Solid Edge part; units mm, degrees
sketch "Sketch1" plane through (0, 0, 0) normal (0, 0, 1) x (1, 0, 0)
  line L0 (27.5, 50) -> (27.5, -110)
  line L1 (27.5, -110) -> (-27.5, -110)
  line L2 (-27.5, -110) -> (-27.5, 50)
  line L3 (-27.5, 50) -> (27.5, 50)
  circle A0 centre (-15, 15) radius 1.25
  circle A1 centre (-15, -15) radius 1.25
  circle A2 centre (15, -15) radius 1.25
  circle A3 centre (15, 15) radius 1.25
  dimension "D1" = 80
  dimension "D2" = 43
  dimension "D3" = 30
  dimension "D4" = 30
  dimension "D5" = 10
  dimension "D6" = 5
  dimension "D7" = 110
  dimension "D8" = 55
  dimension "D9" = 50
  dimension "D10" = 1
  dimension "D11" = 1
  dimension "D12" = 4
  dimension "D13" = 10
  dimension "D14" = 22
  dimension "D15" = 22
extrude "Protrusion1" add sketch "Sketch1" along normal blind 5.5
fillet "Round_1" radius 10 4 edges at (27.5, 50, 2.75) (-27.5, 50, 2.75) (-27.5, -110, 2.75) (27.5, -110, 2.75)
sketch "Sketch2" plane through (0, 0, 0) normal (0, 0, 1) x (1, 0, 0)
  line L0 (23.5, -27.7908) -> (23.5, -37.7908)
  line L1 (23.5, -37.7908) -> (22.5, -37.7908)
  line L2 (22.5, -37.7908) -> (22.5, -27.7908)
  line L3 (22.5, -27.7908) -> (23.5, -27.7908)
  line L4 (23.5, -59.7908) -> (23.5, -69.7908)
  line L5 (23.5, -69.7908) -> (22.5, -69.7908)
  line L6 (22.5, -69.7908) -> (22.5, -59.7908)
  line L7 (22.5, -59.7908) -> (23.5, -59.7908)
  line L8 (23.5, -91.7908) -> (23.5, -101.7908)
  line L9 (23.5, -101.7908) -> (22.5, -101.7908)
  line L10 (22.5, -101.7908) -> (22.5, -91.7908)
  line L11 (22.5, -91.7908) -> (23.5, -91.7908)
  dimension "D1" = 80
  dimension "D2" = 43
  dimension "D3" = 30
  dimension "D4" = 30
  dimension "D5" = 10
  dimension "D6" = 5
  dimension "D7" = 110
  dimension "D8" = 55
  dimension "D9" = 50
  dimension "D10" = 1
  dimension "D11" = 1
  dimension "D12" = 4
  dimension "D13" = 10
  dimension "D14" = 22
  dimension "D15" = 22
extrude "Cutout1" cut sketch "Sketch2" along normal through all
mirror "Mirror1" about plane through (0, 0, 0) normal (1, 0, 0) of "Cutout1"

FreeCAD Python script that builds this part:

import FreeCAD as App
import Part
import Sketcher

V = App.Vector


def edges_at(feature, points):
    """Names of the edges that pass closest to the given points."""
    edges = feature.Shape.Edges
    near = lambda p: min(range(len(edges)), key=lambda i: edges[i].distToShape(Part.Vertex(*p))[0])
    return sorted({f"Edge{near(p) + 1}" for p in points})

doc = App.newDocument("Part")
body = doc.addObject("PartDesign::Body", "Body")

# Sketch on XY plane
sketch1 = body.newObject("Sketcher::SketchObject", "Sketch")
sketch1.AttachmentSupport = (doc.getObject("XY_Plane"), [""])
sketch1.MapMode = "FlatFace"
sketch1.addGeometry([
    Part.LineSegment(V(27.5, -110, 0), V(27.5, 50, 0)),  # 0
    Part.LineSegment(V(27.5, 50, 0), V(-27.5, 50, 0)),  # 1
    Part.LineSegment(V(-27.5, 50, 0), V(-27.5, -110, 0)),  # 2
    Part.LineSegment(V(-27.5, -110, 0), V(27.5, -110, 0)),  # 3
    Part.Circle(V(-15, -15, 0), V(0, 0, 1), 1.2),  # 4
    Part.Circle(V(-15, 15, 0), V(0, 0, 1), 1.2),  # 5
    Part.Circle(V(15, -15, 0), V(0, 0, 1), 1.2),  # 6
    Part.Circle(V(15, 15, 0), V(0, 0, 1), 1.2),  # 7
], False)
sketch1.addConstraint([
    Sketcher.Constraint("Coincident", 0, 2, 1, 1),
    Sketcher.Constraint("Coincident", 1, 2, 2, 1),
    Sketcher.Constraint("Coincident", 2, 2, 3, 1),
    Sketcher.Constraint("Coincident", 3, 2, 0, 1),
    Sketcher.Constraint("Vertical", 0),
    Sketcher.Constraint("Horizontal", 1),
    Sketcher.Constraint("Vertical", 2),
    Sketcher.Constraint("Horizontal", 3),
    Sketcher.Constraint("Equal", 4, 5),
    Sketcher.Constraint("Equal", 5, 6),
    Sketcher.Constraint("Equal", 6, 7),
    Sketcher.Constraint("Symmetric", 5, 3, 6, 3, -1, 1),
    Sketcher.Constraint("Symmetric", 4, 3, 7, 3, -1, 1),
    Sketcher.Constraint("Symmetric", 4, 3, 6, 3, -2),
    Sketcher.Constraint("Diameter", 4, 2.5),
    Sketcher.Constraint("DistanceX", 1, 2, 1, 1, 55.0),
    Sketcher.Constraint("DistanceY", 0, 1, 0, 2, 160.0),
    Sketcher.Constraint("DistanceX", 4, 3, -1, 1, 15.0),
    Sketcher.Constraint("DistanceY", 4, 3, -1, 1, 15.0),
    Sketcher.Constraint("DistanceY", -1, 1, 0, 2, 50.0),
    Sketcher.Constraint("DistanceX", -1, 1, 0, 2, 27.5),
])
pad1 = body.newObject("PartDesign::Pad", "Pad")
pad1.Profile = sketch1
pad1.Length = 5.5
doc.recompute()

fillet = body.newObject("PartDesign::Fillet", "Fillet")
fillet.Base = (pad1, edges_at(pad1, [
    (27.5, 50, 2.75),
    (-27.5, 50, 2.75),
    (-27.5, -110, 2.75),
    (27.5, -110, 2.75),
]))
fillet.Radius = 10

# Sketch on XY plane
sketch2 = body.newObject("Sketcher::SketchObject", "Sketch001")
sketch2.AttachmentSupport = (doc.getObject("XY_Plane"), [""])
sketch2.MapMode = "FlatFace"
sketch2.addGeometry([
    Part.LineSegment(V(23.5, -37.8, 0), V(23.5, -27.8, 0)),  # 0
    Part.LineSegment(V(23.5, -27.8, 0), V(22.5, -27.8, 0)),  # 1
    Part.LineSegment(V(22.5, -27.8, 0), V(22.5, -37.8, 0)),  # 2
    Part.LineSegment(V(22.5, -37.8, 0), V(23.5, -37.8, 0)),  # 3
    Part.LineSegment(V(23.5, -69.8, 0), V(23.5, -59.8, 0)),  # 4
    Part.LineSegment(V(23.5, -59.8, 0), V(22.5, -59.8, 0)),  # 5
    Part.LineSegment(V(22.5, -59.8, 0), V(22.5, -69.8, 0)),  # 6
    Part.LineSegment(V(22.5, -69.8, 0), V(23.5, -69.8, 0)),  # 7
    Part.LineSegment(V(23.5, -101.8, 0), V(23.5, -91.8, 0)),  # 8
    Part.LineSegment(V(23.5, -91.8, 0), V(22.5, -91.8, 0)),  # 9
    Part.LineSegment(V(22.5, -91.8, 0), V(22.5, -101.8, 0)),  # 10
    Part.LineSegment(V(22.5, -101.8, 0), V(23.5, -101.8, 0)),  # 11
], False)
sketch2.addConstraint([
    Sketcher.Constraint("Coincident", 0, 2, 1, 1),
    Sketcher.Constraint("Coincident", 1, 2, 2, 1),
    Sketcher.Constraint("Coincident", 2, 2, 3, 1),
    Sketcher.Constraint("Coincident", 3, 2, 0, 1),
    Sketcher.Constraint("Coincident", 4, 2, 5, 1),
    Sketcher.Constraint("Coincident", 5, 2, 6, 1),
    Sketcher.Constraint("Coincident", 6, 2, 7, 1),
    Sketcher.Constraint("Coincident", 7, 2, 4, 1),
    Sketcher.Constraint("Coincident", 8, 2, 9, 1),
    Sketcher.Constraint("Coincident", 9, 2, 10, 1),
    Sketcher.Constraint("Coincident", 10, 2, 11, 1),
    Sketcher.Constraint("Coincident", 11, 2, 8, 1),
    Sketcher.Constraint("Vertical", 0),
    Sketcher.Constraint("Horizontal", 1),
    Sketcher.Constraint("Vertical", 2),
    Sketcher.Constraint("Horizontal", 3),
    Sketcher.Constraint("Vertical", 4),
    Sketcher.Constraint("Horizontal", 5),
    Sketcher.Constraint("Vertical", 6),
    Sketcher.Constraint("Horizontal", 7),
    Sketcher.Constraint("Vertical", 8),
    Sketcher.Constraint("Horizontal", 9),
    Sketcher.Constraint("Vertical", 10),
    Sketcher.Constraint("Horizontal", 11),
    Sketcher.Constraint("Vertical", 3, 2, 4, 2),
    Sketcher.Constraint("Vertical", 2, 2, 5, 2),
    Sketcher.Constraint("Vertical", 7, 2, 8, 2),
    Sketcher.Constraint("Vertical", 6, 2, 9, 2),
    Sketcher.Constraint("Equal", 2, 4),
    Sketcher.Constraint("Equal", 6, 8),
    Sketcher.Constraint("DistanceX", 1, 2, 1, 1, 1.0),
    Sketcher.Constraint("DistanceY", 0, 1, 0, 2, 10.0),
    Sketcher.Constraint("DistanceY", 4, 2, 3, 2, 22.0),
    Sketcher.Constraint("DistanceY", 8, 2, 7, 2, 22.0),
    Sketcher.Constraint("DistanceX", -1, 1, 0, 2, 23.5),
    Sketcher.Constraint("DistanceY", 0, 2, -1, 1, 27.7908),
])
pocket1 = body.newObject("PartDesign::Pocket", "Pocket")
pocket1.Profile = sketch2
pocket1.Type = "ThroughAll"
pocket1.Reversed = True
doc.recompute()

mirrored = body.newObject("PartDesign::Mirrored", "Mirrored")
mirrored.Originals = [pocket1]
mirrored.MirrorPlane = (doc.getObject("YZ_Plane"), [""])
body.Tip = mirrored

doc.recompute()
